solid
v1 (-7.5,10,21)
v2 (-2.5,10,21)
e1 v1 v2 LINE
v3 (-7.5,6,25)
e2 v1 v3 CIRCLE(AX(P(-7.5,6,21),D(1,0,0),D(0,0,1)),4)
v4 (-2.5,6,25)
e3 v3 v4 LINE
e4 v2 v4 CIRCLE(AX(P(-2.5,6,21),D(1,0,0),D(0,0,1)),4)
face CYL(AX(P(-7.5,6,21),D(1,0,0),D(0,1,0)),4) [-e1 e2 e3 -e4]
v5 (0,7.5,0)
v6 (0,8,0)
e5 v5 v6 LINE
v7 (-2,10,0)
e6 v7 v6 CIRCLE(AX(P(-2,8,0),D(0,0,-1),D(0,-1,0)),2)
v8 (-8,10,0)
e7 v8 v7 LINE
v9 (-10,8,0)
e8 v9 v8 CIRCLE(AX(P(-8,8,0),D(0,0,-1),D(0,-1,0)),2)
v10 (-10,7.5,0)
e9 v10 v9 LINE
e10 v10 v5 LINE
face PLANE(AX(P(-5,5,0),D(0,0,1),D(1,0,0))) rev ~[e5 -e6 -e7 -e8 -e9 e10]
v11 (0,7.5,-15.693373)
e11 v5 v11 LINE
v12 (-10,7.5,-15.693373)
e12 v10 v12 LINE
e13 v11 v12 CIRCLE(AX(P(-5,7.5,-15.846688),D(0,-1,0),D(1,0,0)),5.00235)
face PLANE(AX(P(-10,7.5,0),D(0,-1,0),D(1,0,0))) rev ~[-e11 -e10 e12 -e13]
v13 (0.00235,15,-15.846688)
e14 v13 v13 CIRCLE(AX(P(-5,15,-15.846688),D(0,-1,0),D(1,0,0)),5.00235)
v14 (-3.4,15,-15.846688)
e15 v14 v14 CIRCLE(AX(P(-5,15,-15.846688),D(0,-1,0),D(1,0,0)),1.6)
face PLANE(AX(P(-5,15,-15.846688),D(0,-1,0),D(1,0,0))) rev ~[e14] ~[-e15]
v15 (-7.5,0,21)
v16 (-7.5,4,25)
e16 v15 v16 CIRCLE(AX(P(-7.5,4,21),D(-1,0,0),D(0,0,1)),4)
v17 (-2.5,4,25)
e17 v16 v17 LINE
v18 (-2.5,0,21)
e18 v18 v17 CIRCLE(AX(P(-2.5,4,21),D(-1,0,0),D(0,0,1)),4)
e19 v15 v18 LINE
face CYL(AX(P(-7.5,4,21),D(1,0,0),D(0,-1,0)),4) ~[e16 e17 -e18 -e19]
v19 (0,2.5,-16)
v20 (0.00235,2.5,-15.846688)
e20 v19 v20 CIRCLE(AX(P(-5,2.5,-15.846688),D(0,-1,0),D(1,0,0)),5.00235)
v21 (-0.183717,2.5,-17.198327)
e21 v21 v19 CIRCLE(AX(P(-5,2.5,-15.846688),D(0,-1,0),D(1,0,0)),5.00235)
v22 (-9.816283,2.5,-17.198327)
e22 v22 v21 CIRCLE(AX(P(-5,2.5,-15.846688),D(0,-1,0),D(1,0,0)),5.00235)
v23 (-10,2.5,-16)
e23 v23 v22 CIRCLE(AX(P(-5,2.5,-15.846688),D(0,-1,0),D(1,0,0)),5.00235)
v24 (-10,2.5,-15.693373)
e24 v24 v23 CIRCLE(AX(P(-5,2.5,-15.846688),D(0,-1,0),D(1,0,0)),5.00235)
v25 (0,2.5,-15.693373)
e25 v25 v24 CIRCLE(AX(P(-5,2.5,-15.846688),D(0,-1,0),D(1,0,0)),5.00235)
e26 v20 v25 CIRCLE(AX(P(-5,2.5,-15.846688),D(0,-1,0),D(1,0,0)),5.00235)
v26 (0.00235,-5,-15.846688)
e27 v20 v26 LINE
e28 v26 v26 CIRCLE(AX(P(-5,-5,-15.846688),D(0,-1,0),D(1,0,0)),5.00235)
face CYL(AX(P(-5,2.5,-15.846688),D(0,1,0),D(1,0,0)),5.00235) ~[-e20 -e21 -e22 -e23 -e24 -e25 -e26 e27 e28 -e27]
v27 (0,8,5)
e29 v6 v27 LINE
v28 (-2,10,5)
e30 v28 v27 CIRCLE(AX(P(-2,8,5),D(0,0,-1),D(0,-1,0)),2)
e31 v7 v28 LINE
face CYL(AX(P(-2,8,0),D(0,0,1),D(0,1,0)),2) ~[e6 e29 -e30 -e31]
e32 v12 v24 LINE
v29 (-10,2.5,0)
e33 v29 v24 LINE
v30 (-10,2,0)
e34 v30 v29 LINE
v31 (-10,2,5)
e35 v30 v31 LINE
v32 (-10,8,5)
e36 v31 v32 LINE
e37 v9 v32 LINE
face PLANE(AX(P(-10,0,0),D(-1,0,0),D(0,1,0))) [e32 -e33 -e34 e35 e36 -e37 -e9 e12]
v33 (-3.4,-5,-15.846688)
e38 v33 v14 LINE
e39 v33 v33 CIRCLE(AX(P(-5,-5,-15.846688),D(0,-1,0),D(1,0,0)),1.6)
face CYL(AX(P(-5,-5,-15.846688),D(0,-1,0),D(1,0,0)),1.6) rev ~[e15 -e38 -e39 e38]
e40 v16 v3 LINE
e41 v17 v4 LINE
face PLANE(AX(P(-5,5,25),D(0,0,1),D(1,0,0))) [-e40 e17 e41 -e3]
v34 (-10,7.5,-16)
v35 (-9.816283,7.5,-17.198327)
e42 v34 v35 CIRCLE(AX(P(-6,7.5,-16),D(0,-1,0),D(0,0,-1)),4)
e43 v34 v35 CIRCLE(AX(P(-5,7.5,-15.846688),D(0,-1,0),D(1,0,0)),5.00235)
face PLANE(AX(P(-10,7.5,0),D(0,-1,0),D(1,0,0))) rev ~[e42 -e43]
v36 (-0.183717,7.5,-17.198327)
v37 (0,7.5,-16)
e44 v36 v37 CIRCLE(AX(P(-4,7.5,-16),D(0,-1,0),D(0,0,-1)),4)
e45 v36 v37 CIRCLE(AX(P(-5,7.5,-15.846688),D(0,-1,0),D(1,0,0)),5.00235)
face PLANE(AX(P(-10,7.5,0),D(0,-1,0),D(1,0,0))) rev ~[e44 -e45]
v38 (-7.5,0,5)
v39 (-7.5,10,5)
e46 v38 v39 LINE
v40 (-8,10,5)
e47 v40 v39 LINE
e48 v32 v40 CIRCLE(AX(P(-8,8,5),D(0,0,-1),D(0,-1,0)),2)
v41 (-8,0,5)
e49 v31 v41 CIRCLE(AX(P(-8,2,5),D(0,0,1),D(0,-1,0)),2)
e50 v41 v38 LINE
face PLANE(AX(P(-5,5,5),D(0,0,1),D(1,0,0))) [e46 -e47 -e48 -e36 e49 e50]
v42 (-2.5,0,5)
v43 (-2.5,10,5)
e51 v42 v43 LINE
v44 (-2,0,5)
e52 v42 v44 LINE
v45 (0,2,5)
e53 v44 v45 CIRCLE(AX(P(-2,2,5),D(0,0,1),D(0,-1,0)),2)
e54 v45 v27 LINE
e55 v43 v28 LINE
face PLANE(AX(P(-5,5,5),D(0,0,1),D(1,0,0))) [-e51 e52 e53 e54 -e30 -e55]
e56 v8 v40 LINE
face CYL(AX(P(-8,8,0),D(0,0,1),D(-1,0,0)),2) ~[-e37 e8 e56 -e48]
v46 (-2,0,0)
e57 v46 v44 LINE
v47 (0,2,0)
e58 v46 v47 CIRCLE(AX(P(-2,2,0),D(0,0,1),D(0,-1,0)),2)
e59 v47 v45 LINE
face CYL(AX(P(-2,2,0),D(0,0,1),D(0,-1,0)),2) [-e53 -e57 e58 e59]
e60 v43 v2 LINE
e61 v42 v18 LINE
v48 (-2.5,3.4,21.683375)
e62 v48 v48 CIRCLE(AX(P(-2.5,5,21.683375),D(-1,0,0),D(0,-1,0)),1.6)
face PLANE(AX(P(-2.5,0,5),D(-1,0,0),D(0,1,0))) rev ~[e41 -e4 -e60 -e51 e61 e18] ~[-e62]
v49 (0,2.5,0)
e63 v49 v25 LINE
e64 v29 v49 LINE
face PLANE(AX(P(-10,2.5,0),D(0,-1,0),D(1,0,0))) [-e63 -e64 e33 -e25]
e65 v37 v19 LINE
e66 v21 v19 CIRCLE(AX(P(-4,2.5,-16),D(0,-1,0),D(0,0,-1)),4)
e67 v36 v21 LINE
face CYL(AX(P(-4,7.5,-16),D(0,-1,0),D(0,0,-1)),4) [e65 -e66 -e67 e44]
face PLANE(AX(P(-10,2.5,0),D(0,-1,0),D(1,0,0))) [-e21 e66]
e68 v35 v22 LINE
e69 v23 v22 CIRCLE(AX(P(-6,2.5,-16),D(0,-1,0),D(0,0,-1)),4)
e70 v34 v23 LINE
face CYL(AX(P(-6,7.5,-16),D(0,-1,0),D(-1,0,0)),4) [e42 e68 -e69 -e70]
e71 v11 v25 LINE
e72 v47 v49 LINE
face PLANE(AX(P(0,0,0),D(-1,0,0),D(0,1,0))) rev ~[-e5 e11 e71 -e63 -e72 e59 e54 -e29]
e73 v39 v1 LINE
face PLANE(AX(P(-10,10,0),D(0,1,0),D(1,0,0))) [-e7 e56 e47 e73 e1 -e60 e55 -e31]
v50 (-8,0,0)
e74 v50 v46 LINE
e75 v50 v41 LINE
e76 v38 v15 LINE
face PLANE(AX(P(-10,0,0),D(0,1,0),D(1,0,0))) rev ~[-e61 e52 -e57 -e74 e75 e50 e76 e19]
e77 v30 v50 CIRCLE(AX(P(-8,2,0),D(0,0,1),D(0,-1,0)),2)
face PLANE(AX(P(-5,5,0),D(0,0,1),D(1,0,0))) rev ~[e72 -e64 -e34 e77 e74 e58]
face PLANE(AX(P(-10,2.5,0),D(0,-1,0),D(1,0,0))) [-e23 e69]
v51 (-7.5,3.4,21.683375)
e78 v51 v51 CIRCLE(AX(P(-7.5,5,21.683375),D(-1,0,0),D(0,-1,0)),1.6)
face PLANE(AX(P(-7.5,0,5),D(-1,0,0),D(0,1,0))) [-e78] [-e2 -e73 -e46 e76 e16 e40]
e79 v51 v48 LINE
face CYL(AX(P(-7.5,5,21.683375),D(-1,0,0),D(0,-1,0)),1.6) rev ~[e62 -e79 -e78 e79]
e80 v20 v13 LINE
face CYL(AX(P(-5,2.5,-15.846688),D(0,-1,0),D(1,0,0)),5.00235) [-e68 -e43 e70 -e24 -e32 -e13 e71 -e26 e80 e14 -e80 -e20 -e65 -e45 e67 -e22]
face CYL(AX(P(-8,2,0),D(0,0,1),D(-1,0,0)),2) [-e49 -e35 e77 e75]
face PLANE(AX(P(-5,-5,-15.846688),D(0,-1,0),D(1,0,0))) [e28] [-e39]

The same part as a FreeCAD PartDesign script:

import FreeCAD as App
import Part
import Sketcher
from FreeCAD import Vector


def edges_at(feature, points):
    """Names of the edges that pass closest to the given points."""
    edges = feature.Shape.Edges
    near = lambda p: min(range(len(edges)), key=lambda i: edges[i].distToShape(Part.Vertex(*p))[0])
    return sorted({f"Edge{near(p) + 1}" for p in points})


def add_polygon(sketch, points):
    """Adds a closed chain of lines whose ends are joined by coincident constraints."""
    first, n = sketch.GeometryCount, len(points)
    for a, b in zip(points, points[1:] + points[:1]):
        sketch.addGeometry(Part.LineSegment(App.Vector(*a, 0), App.Vector(*b, 0)), False)
    for i in range(n):
        sketch.addConstraint(Sketcher.Constraint("Coincident", first + i, 2, first + (i + 1) % n, 1))

doc = App.newDocument("Part")
body = doc.addObject("PartDesign::Body", "Body")

# Sketch on XY plane
sketch1 = doc.addObject("Sketcher::SketchObject", "Sketch")
body.addObject(sketch1)
sketch1.AttachmentSupport = (doc.XY_Plane, [""])
sketch1.MapMode = "FlatFace"
add_polygon(sketch1, [(-10, 10), (-10, 0), (0, 0), (0, 10)])  # lines 0-3
sketch1.addConstraint([
    Sketcher.Constraint("Vertical", 0),
    Sketcher.Constraint("Horizontal", 1),
    Sketcher.Constraint("Vertical", 2),
    Sketcher.Constraint("Horizontal", 3),
    Sketcher.Constraint("Coincident", 1, 2, -1, 1),
    Sketcher.Constraint("Equal", 3, 0),
    Sketcher.Constraint("DistanceX", 1, 1, 1, 2, 10.0),
])
pad1 = doc.addObject("PartDesign::Pad", "Pad")
body.addObject(pad1)
pad1.Profile = sketch1
pad1.Length = 5

# Sketch on XY plane
sketch2 = doc.addObject("Sketcher::SketchObject", "Sketch001")
body.addObject(sketch2)
sketch2.AttachmentSupport = (doc.XY_Plane, [""])
sketch2.MapMode = "FlatFace"
sketch2.AttachmentOffset = App.Placement(Vector(0, 0, 5), App.Rotation())
add_polygon(sketch2, [(-7.5, 10), (-7.5, 0), (-2.5, 0), (-2.5, 10)])  # lines 0-3
sketch2.addConstraint([
    Sketcher.Constraint("Vertical", 0),
    Sketcher.Constraint("Horizontal", 1),
    Sketcher.Constraint("Vertical", 2),
    Sketcher.Constraint("Horizontal", 3),
    Sketcher.Constraint("PointOnObject", 0, 2, -1),
    Sketcher.Constraint("DistanceX", 1, 1, 1, 2, 5.0),
    Sketcher.Constraint("DistanceY", 0, 2, 0, 1, 10.0),
    Sketcher.Constraint("DistanceX", 0, 2, -1, 1, 7.5),
])
pad2 = doc.addObject("PartDesign::Pad", "Pad001")
body.addObject(pad2)
pad2.Profile = sketch2
pad2.Length = 20

# Sketch on XY plane
sketch3 = doc.addObject("Sketcher::SketchObject", "Sketch002")
body.addObject(sketch3)
sketch3.AttachmentSupport = (doc.XY_Plane, [""])
sketch3.MapMode = "FlatFace"
add_polygon(sketch3, [(-10, 2.5), (-10, 7.5), (0, 7.5), (0, 2.5)])  # lines 0-3
sketch3.addConstraint([
    Sketcher.Constraint("Vertical", 0),
    Sketcher.Constraint("Horizontal", 1),
    Sketcher.Constraint("Vertical", 2),
    Sketcher.Constraint("Horizontal", 3),
    Sketcher.Constraint("PointOnObject", 1, 2, -2),
    Sketcher.Constraint("DistanceX", 1, 1, 1, 2, 10.0),
    Sketcher.Constraint("DistanceY", 0, 1, 0, 2, 5.0),
    Sketcher.Constraint("DistanceY", -1, 1, 0, 2, 7.5),
])
pad3 = doc.addObject("PartDesign::Pad", "Pad002")
body.addObject(pad3)
pad3.Profile = sketch3
pad3.Length = 20
pad3.Reversed = True

# Sketch on XZ plane
sketch4 = doc.addObject("Sketcher::SketchObject", "Sketch003")
body.addObject(sketch4)
sketch4.AttachmentSupport = (doc.XZ_Plane, [""])
sketch4.MapMode = "FlatFace"
sketch4.AttachmentOffset = App.Placement(Vector(0, 0, -7.5), App.Rotation())
sketch4.addGeometry(Part.Circle(Vector(-5, -15.846688, 0), Vector(0, 0, 1), 1.6), False)
sketch4.addConstraint([
    Sketcher.Constraint("Diameter", 0, 3.2),
    Sketcher.Constraint("DistanceX", 0, 3, -1, 1, 5.0),
    Sketcher.Constraint("DistanceY", 0, 3, -1, 1, 15.846688),
])
pocket1 = doc.addObject("PartDesign::Pocket", "Pocket")
body.addObject(pocket1)
pocket1.Profile = sketch4
pocket1.Length = 5
pocket1.Reversed = True

# Sketch on YZ plane
sketch5 = doc.addObject("Sketcher::SketchObject", "Sketch004")
body.addObject(sketch5)
sketch5.AttachmentSupport = (doc.YZ_Plane, [""])
sketch5.MapMode = "FlatFace"
sketch5.AttachmentOffset = App.Placement(Vector(0, 0, -7.5), App.Rotation())
sketch5.addGeometry(Part.Circle(Vector(5, 21.683375, 0), Vector(0, 0, 1), 1.6), False)
sketch5.addConstraint([
    Sketcher.Constraint("Diameter", 0, 3.2),
    Sketcher.Constraint("DistanceX", -1, 1, 0, 3, 5.0),
    Sketcher.Constraint("DistanceY", -1, 1, 0, 3, 21.683375),
])
pocket2 = doc.addObject("PartDesign::Pocket", "Pocket001")
body.addObject(pocket2)
pocket2.Profile = sketch5
pocket2.Type = "ThroughAll"
pocket2.Reversed = True
doc.recompute()

fillet = doc.addObject("PartDesign::Fillet", "Fillet")
body.addObject(fillet)
fillet.Base = (pocket2, edges_at(pocket2, [
    (-10, 5, -20),
    (0, 5, -20),
    (-5, 10, 25),
    (-5, 0, 25),
]))
fillet.Radius = 4
doc.recompute()

fillet2 = doc.addObject("PartDesign::Fillet", "Fillet001")
body.addObject(fillet2)
fillet2.Base = (fillet, edges_at(fillet, [
    (-10, 10, 2.5),
    (-10, 0, 2.5),
    (0, 10, 2.5),
    (0, 0, 2.5),
]))
fillet2.Radius = 2

# Sketch on XZ plane
sketch6 = doc.addObject("Sketcher::SketchObject", "Sketch005")
body.addObject(sketch6)
sketch6.AttachmentSupport = (doc.XZ_Plane, [""])
sketch6.MapMode = "FlatFace"
sketch6.AttachmentOffset = App.Placement(Vector(0, 0, -2.5), App.Rotation())
sketch6.addGeometry(Part.Circle(Vector(-5, -15.846688, 0), Vector(0, 0, 1), 5.00235), False)
sketch6.addConstraint([
    Sketcher.Constraint("DistanceX", 0, 3, -1, 1, 5.0),
    Sketcher.Constraint("Diameter", 0, 10.0047),
    Sketcher.Constraint("DistanceY", 0, 3, -1, 1, 15.846688),
])
pad4 = doc.addObject("PartDesign::Pad", "Pad003")
body.addObject(pad4)
pad4.Profile = sketch6
pad4.Type = "TwoLengths"
pad4.Length = 7.5
pad4.Length2 = 12.5

# Sketch on XZ plane
sketch7 = doc.addObject("Sketcher::SketchObject", "Sketch006")
body.addObject(sketch7)
sketch7.AttachmentSupport = (doc.XZ_Plane, [""])
sketch7.MapMode = "FlatFace"
sketch7.AttachmentOffset = App.Placement(Vector(0, 0, 5), App.Rotation())
sketch7.addGeometry(Part.Circle(Vector(-5, -15.846688, 0), Vector(0, 0, 1), 1.6), False)
sketch7.addConstraint([
    Sketcher.Constraint("Diameter", 0, 3.2),
    Sketcher.Constraint("DistanceX", 0, 3, -1, 1, 5.0),
    Sketcher.Constraint("DistanceY", 0, 3, -1, 1, 15.846688),
])
pocket3 = doc.addObject("PartDesign::Pocket", "Pocket002")
body.addObject(pocket3)
pocket3.Profile = sketch7
pocket3.Type = "ThroughAll"

doc.recompute()
